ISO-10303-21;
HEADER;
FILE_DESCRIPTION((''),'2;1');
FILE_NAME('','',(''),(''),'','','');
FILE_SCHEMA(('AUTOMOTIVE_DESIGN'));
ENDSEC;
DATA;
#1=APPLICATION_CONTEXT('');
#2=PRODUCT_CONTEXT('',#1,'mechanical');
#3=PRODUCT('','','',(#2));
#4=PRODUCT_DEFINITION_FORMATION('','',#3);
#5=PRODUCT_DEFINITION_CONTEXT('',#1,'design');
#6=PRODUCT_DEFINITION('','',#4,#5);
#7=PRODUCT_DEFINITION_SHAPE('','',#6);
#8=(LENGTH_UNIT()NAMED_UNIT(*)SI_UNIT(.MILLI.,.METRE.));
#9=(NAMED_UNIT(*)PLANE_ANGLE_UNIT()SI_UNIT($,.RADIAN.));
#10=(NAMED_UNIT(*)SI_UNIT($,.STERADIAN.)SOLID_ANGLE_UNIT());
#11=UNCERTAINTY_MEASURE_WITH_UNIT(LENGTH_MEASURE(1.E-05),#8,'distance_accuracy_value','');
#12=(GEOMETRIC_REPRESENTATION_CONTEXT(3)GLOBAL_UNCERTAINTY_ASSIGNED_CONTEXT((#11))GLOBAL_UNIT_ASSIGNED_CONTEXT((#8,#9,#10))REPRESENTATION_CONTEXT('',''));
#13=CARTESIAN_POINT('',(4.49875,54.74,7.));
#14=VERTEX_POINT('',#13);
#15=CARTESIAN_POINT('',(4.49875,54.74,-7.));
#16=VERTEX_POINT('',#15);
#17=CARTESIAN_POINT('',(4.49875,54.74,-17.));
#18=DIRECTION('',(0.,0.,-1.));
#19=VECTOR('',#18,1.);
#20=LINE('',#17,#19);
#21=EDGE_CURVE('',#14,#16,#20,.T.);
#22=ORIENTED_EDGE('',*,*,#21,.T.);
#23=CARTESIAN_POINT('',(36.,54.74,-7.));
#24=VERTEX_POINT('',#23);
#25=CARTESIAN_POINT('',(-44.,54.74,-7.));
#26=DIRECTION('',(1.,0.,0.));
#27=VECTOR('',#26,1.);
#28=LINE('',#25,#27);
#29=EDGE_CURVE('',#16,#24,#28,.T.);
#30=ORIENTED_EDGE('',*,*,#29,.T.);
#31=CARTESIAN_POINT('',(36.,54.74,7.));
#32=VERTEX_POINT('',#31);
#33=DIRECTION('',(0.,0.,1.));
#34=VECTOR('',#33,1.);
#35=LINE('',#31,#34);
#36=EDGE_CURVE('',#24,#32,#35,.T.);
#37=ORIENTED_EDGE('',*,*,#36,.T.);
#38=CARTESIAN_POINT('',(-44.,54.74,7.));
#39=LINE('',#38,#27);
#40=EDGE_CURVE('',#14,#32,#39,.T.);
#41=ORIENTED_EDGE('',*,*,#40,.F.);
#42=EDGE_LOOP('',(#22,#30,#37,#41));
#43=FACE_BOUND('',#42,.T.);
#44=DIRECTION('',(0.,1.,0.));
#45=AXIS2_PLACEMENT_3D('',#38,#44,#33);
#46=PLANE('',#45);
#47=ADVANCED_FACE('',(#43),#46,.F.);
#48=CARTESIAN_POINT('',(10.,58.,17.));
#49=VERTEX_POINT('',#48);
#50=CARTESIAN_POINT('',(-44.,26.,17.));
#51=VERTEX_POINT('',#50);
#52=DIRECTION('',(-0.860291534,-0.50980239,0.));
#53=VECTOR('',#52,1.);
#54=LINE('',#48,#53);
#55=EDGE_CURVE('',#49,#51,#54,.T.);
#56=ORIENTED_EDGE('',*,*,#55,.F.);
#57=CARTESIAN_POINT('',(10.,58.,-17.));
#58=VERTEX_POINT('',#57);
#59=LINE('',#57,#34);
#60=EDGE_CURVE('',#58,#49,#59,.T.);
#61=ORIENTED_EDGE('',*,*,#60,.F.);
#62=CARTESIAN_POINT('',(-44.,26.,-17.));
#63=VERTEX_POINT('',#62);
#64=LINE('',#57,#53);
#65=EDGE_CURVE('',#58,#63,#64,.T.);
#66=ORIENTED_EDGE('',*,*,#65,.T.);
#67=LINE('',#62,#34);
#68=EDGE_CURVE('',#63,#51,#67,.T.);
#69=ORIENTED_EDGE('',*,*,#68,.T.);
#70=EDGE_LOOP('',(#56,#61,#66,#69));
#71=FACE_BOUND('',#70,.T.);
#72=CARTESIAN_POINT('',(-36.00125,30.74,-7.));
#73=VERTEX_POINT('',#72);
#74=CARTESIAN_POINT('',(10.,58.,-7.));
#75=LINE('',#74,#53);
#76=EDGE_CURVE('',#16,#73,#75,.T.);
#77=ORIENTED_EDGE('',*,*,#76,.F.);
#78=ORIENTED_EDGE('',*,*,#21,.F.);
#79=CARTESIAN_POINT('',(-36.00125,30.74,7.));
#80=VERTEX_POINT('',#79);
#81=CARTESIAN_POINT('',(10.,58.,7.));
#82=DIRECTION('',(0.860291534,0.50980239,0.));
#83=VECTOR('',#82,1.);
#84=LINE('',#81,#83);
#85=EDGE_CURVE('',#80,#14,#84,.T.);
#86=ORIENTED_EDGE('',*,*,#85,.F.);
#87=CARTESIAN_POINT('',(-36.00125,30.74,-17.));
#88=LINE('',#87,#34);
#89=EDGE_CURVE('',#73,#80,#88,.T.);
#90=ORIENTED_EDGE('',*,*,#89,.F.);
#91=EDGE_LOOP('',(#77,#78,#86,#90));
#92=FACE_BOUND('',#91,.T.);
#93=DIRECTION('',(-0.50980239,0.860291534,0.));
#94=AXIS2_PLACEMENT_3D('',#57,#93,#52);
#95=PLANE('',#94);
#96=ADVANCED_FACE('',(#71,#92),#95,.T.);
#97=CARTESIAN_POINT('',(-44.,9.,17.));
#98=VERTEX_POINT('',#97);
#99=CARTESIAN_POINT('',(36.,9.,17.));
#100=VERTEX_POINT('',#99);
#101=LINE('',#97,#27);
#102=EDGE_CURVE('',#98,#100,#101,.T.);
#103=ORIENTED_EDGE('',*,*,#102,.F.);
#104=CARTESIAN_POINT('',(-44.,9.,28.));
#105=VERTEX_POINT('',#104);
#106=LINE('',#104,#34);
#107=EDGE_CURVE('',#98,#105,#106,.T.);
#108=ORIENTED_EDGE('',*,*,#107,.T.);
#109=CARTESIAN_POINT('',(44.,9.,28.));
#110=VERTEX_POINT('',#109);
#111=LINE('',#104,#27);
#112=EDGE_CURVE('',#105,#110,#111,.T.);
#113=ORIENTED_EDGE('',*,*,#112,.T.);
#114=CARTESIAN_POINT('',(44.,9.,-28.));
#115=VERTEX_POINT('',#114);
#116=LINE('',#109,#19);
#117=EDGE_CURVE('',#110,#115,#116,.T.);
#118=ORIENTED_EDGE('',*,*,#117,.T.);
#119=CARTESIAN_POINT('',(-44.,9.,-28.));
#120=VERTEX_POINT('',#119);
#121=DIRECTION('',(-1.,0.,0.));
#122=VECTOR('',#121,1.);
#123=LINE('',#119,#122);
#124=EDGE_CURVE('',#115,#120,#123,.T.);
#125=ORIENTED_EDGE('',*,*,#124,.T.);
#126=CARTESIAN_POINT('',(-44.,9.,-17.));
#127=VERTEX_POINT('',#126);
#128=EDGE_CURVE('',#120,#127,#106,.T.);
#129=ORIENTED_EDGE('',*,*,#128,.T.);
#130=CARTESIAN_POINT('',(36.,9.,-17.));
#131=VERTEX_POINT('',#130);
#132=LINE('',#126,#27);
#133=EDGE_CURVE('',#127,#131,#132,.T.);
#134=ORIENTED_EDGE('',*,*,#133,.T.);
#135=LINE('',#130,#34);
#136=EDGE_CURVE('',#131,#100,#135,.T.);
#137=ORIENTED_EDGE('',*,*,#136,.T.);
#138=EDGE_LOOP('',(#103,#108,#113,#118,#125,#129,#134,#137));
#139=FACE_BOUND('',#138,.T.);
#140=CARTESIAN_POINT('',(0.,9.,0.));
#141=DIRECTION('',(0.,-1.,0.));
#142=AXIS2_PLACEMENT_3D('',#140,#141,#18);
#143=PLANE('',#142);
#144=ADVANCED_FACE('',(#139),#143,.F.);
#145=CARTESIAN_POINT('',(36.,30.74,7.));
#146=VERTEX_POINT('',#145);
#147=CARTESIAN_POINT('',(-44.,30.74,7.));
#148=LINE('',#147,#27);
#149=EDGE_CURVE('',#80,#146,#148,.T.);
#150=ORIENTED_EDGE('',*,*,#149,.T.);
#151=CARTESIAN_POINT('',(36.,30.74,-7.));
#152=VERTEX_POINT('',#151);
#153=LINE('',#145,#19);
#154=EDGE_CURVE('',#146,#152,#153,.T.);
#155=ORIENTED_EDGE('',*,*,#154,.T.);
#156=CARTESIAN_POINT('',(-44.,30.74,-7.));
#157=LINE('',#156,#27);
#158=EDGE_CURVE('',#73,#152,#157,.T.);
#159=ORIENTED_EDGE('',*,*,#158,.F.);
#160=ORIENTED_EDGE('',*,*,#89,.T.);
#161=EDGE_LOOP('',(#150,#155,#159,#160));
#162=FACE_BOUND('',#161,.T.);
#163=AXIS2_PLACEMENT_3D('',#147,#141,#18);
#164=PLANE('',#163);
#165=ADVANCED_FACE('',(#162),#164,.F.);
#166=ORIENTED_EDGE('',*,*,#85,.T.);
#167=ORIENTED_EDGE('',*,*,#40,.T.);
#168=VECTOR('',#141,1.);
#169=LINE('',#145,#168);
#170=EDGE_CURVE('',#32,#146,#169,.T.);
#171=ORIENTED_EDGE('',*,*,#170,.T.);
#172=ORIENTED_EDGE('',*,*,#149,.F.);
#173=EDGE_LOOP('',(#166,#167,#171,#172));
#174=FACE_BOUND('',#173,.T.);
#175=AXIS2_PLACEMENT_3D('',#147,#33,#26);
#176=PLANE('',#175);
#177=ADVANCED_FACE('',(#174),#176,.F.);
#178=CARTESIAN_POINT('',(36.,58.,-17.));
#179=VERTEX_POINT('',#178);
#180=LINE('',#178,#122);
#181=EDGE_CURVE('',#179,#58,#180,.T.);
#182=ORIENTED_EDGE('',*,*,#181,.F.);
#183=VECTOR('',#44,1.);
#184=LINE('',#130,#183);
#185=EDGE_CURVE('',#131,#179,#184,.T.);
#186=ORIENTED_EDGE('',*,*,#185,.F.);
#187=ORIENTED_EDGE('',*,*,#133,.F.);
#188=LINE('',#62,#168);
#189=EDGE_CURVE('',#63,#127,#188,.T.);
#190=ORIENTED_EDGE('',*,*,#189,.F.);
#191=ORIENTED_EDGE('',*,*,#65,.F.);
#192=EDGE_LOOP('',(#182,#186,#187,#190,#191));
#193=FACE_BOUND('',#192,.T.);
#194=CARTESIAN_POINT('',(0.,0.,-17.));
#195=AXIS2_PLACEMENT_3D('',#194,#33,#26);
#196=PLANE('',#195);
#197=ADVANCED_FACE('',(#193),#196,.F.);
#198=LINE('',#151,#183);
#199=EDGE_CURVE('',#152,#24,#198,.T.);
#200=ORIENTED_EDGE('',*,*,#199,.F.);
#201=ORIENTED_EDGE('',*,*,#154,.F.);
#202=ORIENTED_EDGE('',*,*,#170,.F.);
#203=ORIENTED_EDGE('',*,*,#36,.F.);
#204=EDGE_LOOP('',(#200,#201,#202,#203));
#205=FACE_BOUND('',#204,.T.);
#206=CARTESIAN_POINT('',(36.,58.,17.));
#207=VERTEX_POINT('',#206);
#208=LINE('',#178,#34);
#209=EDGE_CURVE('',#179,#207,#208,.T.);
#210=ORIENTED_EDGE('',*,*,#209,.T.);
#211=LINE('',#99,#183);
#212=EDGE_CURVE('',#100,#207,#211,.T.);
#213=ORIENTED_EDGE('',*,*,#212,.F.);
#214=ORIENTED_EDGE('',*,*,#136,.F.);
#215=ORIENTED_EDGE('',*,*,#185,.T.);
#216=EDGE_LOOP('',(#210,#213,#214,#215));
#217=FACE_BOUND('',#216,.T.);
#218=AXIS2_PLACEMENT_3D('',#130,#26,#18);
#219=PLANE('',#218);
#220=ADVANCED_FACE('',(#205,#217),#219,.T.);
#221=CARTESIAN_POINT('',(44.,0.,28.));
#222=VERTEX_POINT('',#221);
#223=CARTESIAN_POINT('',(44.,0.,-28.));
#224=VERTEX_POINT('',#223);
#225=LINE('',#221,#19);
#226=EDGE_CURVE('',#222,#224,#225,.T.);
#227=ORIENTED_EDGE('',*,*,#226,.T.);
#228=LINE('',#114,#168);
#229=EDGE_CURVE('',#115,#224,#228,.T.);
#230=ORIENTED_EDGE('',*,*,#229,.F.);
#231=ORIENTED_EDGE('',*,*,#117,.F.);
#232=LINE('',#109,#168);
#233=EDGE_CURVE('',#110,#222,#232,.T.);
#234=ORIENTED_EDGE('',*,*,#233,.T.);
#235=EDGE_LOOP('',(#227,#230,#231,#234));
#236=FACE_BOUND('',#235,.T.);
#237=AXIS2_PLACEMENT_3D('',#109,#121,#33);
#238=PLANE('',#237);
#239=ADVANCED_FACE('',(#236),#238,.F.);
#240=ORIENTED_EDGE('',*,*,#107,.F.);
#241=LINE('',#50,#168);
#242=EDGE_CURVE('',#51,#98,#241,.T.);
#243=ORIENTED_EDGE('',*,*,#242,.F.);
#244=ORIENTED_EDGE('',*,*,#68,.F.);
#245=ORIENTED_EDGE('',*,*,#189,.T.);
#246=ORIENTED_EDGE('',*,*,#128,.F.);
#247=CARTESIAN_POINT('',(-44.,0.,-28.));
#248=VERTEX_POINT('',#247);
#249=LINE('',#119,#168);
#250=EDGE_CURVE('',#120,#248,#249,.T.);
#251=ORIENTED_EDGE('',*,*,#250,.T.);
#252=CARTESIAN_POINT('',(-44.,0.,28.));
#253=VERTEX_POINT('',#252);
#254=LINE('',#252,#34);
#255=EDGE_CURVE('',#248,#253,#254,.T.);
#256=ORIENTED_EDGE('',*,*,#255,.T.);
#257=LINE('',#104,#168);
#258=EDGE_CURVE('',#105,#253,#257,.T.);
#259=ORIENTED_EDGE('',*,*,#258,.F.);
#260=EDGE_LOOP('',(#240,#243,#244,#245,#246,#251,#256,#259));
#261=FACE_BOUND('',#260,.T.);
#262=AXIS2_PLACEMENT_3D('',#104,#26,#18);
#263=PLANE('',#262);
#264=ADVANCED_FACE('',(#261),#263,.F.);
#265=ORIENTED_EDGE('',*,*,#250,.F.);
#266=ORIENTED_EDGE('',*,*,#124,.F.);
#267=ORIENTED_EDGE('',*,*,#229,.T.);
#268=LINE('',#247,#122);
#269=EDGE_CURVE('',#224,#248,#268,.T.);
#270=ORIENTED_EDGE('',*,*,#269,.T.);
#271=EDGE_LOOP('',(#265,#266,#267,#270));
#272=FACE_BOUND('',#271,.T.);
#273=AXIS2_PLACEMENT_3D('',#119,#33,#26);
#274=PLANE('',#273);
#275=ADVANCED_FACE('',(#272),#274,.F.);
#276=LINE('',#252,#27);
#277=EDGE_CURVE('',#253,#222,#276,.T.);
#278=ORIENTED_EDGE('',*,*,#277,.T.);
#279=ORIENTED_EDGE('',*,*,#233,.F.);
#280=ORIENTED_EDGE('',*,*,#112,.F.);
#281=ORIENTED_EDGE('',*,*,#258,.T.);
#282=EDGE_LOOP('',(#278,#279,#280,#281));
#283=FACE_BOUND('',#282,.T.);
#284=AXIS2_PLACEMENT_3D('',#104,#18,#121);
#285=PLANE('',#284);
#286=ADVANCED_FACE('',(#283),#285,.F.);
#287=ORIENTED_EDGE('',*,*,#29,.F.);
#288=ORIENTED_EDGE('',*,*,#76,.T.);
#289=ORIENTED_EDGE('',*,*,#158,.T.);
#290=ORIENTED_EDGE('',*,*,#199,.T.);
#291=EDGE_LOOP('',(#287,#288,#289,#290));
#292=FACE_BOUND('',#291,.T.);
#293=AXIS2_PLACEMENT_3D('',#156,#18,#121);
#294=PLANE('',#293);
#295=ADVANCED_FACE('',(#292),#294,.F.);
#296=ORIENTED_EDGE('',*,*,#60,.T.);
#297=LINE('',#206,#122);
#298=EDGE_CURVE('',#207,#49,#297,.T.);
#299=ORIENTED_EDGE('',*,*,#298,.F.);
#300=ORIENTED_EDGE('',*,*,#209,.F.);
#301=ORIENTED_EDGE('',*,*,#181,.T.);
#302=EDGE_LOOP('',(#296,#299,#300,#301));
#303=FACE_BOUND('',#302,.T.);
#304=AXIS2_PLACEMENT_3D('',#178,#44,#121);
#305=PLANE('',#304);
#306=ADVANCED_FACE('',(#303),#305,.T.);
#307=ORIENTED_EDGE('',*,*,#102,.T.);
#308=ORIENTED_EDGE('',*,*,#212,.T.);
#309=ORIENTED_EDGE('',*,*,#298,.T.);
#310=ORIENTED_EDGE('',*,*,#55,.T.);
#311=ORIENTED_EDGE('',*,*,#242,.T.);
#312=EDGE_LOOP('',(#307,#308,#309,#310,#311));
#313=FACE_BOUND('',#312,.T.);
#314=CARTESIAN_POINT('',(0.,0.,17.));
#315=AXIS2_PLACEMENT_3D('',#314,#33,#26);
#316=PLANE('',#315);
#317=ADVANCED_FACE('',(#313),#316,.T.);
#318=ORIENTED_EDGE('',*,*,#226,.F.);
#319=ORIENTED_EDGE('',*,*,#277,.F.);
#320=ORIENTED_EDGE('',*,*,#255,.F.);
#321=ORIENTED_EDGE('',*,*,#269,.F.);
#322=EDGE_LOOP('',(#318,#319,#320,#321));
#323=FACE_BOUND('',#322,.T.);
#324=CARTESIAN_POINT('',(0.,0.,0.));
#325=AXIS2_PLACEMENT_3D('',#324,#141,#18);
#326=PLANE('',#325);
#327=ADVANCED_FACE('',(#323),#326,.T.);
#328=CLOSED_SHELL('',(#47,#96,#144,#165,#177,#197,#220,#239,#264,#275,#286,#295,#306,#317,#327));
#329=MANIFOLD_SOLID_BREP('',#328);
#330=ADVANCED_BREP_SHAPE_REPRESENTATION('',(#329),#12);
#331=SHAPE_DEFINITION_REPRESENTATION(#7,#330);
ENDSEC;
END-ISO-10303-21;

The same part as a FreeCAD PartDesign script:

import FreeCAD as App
import Part
import Sketcher

V = App.Vector
Q = App.Units.Quantity

doc = App.newDocument("Part")
body = doc.addObject("PartDesign::Body", "Body")

# Sketch on XZ plane
sketch1 = body.newObject("Sketcher::SketchObject", "Sketch")
sketch1.AttachmentSupport = (doc.getObject("XZ_Plane"), [""])
sketch1.MapMode = "FlatFace"
sketch1.addGeometry(Part.LineSegment(V(-44, -28, 0), V(-44, 28, 0)), False)
sketch1.addGeometry(Part.LineSegment(V(-44, 28, 0), V(44, 28, 0)), False)
sketch1.addGeometry(Part.LineSegment(V(44, 28, 0), V(44, -28, 0)), False)
sketch1.addGeometry(Part.LineSegment(V(44, -28, 0), V(-44, -28, 0)), False)
sketch1.addConstraint(Sketcher.Constraint("Coincident", 0, 2, 1, 1))
sketch1.addConstraint(Sketcher.Constraint("Coincident", 1, 2, 2, 1))
sketch1.addConstraint(Sketcher.Constraint("Coincident", 2, 2, 3, 1))
sketch1.addConstraint(Sketcher.Constraint("Coincident", 3, 2, 0, 1))
sketch1.addConstraint(Sketcher.Constraint("Vertical", 0))
sketch1.addConstraint(Sketcher.Constraint("Horizontal", 1))
sketch1.addConstraint(Sketcher.Constraint("Vertical", 2))
sketch1.addConstraint(Sketcher.Constraint("Horizontal", 3))
sketch1.addConstraint(Sketcher.Constraint("Symmetric", 0, 2, 2, 2, -1, 1))
sketch1.addConstraint(Sketcher.Constraint("DistanceX", 1, 1, 1, 2, Q("88 mm")))
sketch1.addConstraint(Sketcher.Constraint("DistanceY", 0, 1, 0, 2, Q("56 mm")))
pad1 = body.newObject("PartDesign::Pad", "Pad")
pad1.Profile = sketch1
pad1.Length = 9
pad1.Reversed = True

# Sketch on XY plane
sketch2 = body.newObject("Sketcher::SketchObject", "Sketch001")
sketch2.AttachmentSupport = (doc.getObject("XY_Plane"), [""])
sketch2.MapMode = "FlatFace"
sketch2.AttachmentOffset = App.Placement(V(0, 0, 17), App.Rotation())
sketch2.addGeometry(Part.LineSegment(V(-44, 9, 0), V(36, 9, 0)), False)
sketch2.addGeometry(Part.LineSegment(V(36, 9, 0), V(36, 58, 0)), False)
sketch2.addGeometry(Part.LineSegment(V(36, 58, 0), V(10, 58, 0)), False)
sketch2.addGeometry(Part.LineSegment(V(10, 58, 0), V(-44, 26, 0)), False)
sketch2.addGeometry(Part.LineSegment(V(-44, 26, 0), V(-44, 9, 0)), False)
sketch2.addConstraint(Sketcher.Constraint("Coincident", 0, 2, 1, 1))
sketch2.addConstraint(Sketcher.Constraint("Coincident", 1, 2, 2, 1))
sketch2.addConstraint(Sketcher.Constraint("Coincident", 2, 2, 3, 1))
sketch2.addConstraint(Sketcher.Constraint("Coincident", 3, 2, 4, 1))
sketch2.addConstraint(Sketcher.Constraint("Coincident", 4, 2, 0, 1))
sketch2.addConstraint(Sketcher.Constraint("Horizontal", 0))
sketch2.addConstraint(Sketcher.Constraint("Vertical", 1))
sketch2.addConstraint(Sketcher.Constraint("Horizontal", 2))
sketch2.addConstraint(Sketcher.Constraint("Vertical", 4))
sketch2.addConstraint(Sketcher.Constraint("DistanceX", 0, 1, 0, 2, Q("80 mm")))
sketch2.addConstraint(Sketcher.Constraint("DistanceX", 2, 2, 2, 1, Q("26 mm")))
sketch2.addConstraint(Sketcher.Constraint("DistanceY", 1, 1, 1, 2, Q("49 mm")))
sketch2.addConstraint(Sketcher.Constraint("DistanceY", 4, 2, 4, 1, Q("17 mm")))
sketch2.addConstraint(Sketcher.Constraint("DistanceX", -1, 1, 0, 2, Q("36 mm")))
sketch2.addConstraint(Sketcher.Constraint("DistanceY", -1, 1, 0, 2, Q("9 mm")))
pad2 = body.newObject("PartDesign::Pad", "Pad001")
pad2.Profile = sketch2
pad2.Length = 34
pad2.Reversed = True

# Sketch on YZ plane
sketch3 = body.newObject("Sketcher::SketchObject", "Sketch002")
sketch3.AttachmentSupport = (doc.getObject("YZ_Plane"), [""])
sketch3.MapMode = "FlatFace"
sketch3.AttachmentOffset = App.Placement(V(0, 0, 36), App.Rotation())
sketch3.addGeometry(Part.LineSegment(V(55, 7, 0), V(31, 7, 0)), False)
sketch3.addGeometry(Part.LineSegment(V(31, 7, 0), V(31, -7, 0)), False)
sketch3.addGeometry(Part.LineSegment(V(31, -7, 0), V(55, -7, 0)), False)
sketch3.addGeometry(Part.LineSegment(V(55, -7, 0), V(55, 7, 0)), False)
sketch3.addConstraint(Sketcher.Constraint("Coincident", 0, 2, 1, 1))
sketch3.addConstraint(Sketcher.Constraint("Coincident", 1, 2, 2, 1))
sketch3.addConstraint(Sketcher.Constraint("Coincident", 2, 2, 3, 1))
sketch3.addConstraint(Sketcher.Constraint("Coincident", 3, 2, 0, 1))
sketch3.addConstraint(Sketcher.Constraint("Horizontal", 0))
sketch3.addConstraint(Sketcher.Constraint("Vertical", 1))
sketch3.addConstraint(Sketcher.Constraint("Horizontal", 2))
sketch3.addConstraint(Sketcher.Constraint("Vertical", 3))
sketch3.addConstraint(Sketcher.Constraint("DistanceX", 0, 2, 0, 1, Q("24 mm")))
sketch3.addConstraint(Sketcher.Constraint("DistanceY", 1, 2, 1, 1, Q("14 mm")))
sketch3.addConstraint(Sketcher.Constraint("DistanceY", -1, 1, 0, 2, Q("7 mm")))
sketch3.addConstraint(Sketcher.Constraint("DistanceX", -1, 1, 0, 2, Q("30.74 mm")))
pocket1 = body.newObject("PartDesign::Pocket", "Pocket")
pocket1.Profile = sketch3
pocket1.Type = "ThroughAll"

doc.recompute()
